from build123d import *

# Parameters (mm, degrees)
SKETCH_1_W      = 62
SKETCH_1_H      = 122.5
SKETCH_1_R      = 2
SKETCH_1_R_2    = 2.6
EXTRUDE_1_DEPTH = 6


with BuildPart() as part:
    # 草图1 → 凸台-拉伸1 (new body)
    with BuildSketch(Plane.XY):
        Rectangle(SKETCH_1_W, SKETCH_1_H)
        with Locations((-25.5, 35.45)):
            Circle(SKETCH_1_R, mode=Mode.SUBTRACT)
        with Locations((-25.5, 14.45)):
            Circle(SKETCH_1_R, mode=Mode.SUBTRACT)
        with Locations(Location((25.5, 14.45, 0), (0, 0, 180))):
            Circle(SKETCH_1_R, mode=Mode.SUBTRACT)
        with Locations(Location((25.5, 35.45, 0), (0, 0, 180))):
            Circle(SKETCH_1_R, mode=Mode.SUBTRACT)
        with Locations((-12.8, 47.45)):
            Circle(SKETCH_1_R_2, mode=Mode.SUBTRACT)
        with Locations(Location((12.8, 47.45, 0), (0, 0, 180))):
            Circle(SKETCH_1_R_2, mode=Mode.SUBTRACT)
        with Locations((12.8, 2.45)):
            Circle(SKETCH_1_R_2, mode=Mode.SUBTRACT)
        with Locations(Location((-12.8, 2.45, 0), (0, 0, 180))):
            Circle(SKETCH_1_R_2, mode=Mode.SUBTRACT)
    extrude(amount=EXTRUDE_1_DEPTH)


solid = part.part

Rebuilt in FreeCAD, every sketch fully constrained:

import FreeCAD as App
import Part
import Sketcher
from FreeCAD import Vector
Q = App.Units.Quantity


def add_polygon(sketch, points):
    """Adds a closed chain of lines whose ends are joined by coincident constraints."""
    first, n = sketch.GeometryCount, len(points)
    for a, b in zip(points, points[1:] + points[:1]):
        sketch.addGeometry(Part.LineSegment(App.Vector(*a, 0), App.Vector(*b, 0)), False)
    for i in range(n):
        sketch.addConstraint(Sketcher.Constraint("Coincident", first + i, 2, first + (i + 1) % n, 1))

doc = App.newDocument("Part")
body = doc.addObject("PartDesign::Body", "Body")

sketch1 = doc.addObject("Sketcher::SketchObject", "Sketch")
body.addObject(sketch1)
sketch1.AttachmentSupport = (doc.XY_Plane, [""])
sketch1.MapMode = "FlatFace"
add_polygon(sketch1, [(-31, 61.2), (-31, -61.2), (31, -61.2), (31, 61.2)])
sketch1.addGeometry(Part.Circle(Vector(-12.8, 2.5, 0), Vector(0, 0, 1), 2.6), False)
sketch1.addGeometry(Part.Circle(Vector(-25.5, 14.4, 0), Vector(0, 0, 1), 2), False)
sketch1.addGeometry(Part.Circle(Vector(12.8, 2.5, 0), Vector(0, 0, 1), 2.6), False)
sketch1.addGeometry(Part.Circle(Vector(25.5, 14.4, 0), Vector(0, 0, 1), 2), False)
sketch1.addGeometry(Part.Circle(Vector(-25.5, 35.5, 0), Vector(0, 0, 1), 2), False)
sketch1.addGeometry(Part.Circle(Vector(-12.8, 47.5, 0), Vector(0, 0, 1), 2.6), False)
sketch1.addGeometry(Part.Circle(Vector(25.5, 35.5, 0), Vector(0, 0, 1), 2), False)
sketch1.addGeometry(Part.Circle(Vector(12.8, 47.5, 0), Vector(0, 0, 1), 2.6), False)
sketch1.addConstraint(Sketcher.Constraint("Vertical", 0))
sketch1.addConstraint(Sketcher.Constraint("Horizontal", 1))
sketch1.addConstraint(Sketcher.Constraint("Vertical", 2))
sketch1.addConstraint(Sketcher.Constraint("Horizontal", 3))
sketch1.addConstraint(Sketcher.Constraint("Equal", 4, 6))
sketch1.addConstraint(Sketcher.Constraint("Equal", 5, 7))
sketch1.addConstraint(Sketcher.Constraint("Equal", 7, 8))
sketch1.addConstraint(Sketcher.Constraint("Equal", 6, 9))
sketch1.addConstraint(Sketcher.Constraint("Equal", 8, 10))
sketch1.addConstraint(Sketcher.Constraint("Equal", 9, 11))
sketch1.addConstraint(Sketcher.Constraint("Symmetric", 0, 2, 2, 2, -1, 1))
sketch1.addConstraint(Sketcher.Constraint("Symmetric", 4, 3, 6, 3, -2))
sketch1.addConstraint(Sketcher.Constraint("Symmetric", 5, 3, 7, 3, -2))
sketch1.addConstraint(Sketcher.Constraint("Symmetric", 8, 3, 10, 3, -2))
sketch1.addConstraint(Sketcher.Constraint("Symmetric", 9, 3, 11, 3, -2))
sketch1.addConstraint(Sketcher.Constraint("Vertical", 5, 3, 8, 3))
sketch1.addConstraint(Sketcher.Constraint("Vertical", 4, 3, 9, 3))
sketch1.addConstraint(Sketcher.Constraint("Diameter", 5, Q("4 mm")))
sketch1.addConstraint(Sketcher.Constraint("Diameter", 4, Q("5.2 mm")))
sketch1.addConstraint(Sketcher.Constraint("DistanceX", 1, 1, 1, 2, Q("62 mm")))
sketch1.addConstraint(Sketcher.Constraint("DistanceY", 0, 2, 0, 1, Q("122.5 mm")))
sketch1.addConstraint(Sketcher.Constraint("DistanceY", 4, 3, 5, 3, Q("12 mm")))
sketch1.addConstraint(Sketcher.Constraint("DistanceX", 5, 3, 7, 3, Q("51 mm")))
sketch1.addConstraint(Sketcher.Constraint("DistanceY", 5, 3, 8, 3, Q("21 mm")))
sketch1.addConstraint(Sketcher.Constraint("DistanceY", 8, 3, 9, 3, Q("12 mm")))
sketch1.addConstraint(Sketcher.Constraint("DistanceX", 4, 3, -1, 1, Q("12.8 mm")))
sketch1.addConstraint(Sketcher.Constraint("DistanceY", 0, 2, 4, 3, Q("63.7 mm")))
pad1 = doc.addObject("PartDesign::Pad", "Pad")
body.addObject(pad1)
pad1.Profile = sketch1
pad1.Length = 6

doc.recompute()
